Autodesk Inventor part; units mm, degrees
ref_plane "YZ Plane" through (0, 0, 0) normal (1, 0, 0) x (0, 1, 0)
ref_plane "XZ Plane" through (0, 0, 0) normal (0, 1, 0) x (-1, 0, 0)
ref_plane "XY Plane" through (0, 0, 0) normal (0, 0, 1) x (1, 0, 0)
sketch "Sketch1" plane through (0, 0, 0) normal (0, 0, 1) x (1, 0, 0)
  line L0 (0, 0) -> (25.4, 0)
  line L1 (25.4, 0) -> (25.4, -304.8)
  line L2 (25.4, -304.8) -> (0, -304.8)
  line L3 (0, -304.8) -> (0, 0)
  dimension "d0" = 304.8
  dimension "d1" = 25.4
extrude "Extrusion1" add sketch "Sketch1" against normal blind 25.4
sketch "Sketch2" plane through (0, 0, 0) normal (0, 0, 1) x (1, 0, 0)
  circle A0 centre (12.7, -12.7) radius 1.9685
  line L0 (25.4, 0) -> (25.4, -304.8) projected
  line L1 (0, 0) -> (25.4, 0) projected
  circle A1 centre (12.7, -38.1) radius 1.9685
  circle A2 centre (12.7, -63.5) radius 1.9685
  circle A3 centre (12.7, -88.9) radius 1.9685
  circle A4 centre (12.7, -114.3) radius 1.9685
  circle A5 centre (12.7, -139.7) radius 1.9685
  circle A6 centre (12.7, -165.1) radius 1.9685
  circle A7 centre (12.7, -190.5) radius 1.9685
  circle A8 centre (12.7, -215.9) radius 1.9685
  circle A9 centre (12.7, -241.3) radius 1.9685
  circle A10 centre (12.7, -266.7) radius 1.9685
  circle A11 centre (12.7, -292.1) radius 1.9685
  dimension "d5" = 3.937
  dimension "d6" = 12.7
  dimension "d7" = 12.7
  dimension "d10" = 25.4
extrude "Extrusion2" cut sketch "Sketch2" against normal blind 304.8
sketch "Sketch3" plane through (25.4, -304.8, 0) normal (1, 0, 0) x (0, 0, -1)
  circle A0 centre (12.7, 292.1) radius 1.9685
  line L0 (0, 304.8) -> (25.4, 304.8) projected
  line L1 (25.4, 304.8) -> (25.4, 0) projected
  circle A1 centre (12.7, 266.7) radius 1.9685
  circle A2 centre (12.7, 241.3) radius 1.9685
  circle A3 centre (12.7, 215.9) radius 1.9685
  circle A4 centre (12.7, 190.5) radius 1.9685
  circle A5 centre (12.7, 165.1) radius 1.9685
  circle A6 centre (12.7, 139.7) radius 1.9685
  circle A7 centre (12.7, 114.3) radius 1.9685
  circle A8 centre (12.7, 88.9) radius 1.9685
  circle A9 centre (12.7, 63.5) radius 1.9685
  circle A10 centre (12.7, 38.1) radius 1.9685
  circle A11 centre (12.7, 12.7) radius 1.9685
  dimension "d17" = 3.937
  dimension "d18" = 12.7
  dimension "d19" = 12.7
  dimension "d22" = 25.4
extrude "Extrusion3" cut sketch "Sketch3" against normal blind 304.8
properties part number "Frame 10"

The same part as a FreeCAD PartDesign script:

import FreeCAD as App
import Part
import Sketcher
Q = App.Units.Quantity

doc = App.newDocument("Part")
params = doc.addObject("Spreadsheet::Sheet", "Params")
for row, (alias, value) in enumerate([
    ("sketch1_width", "1 in"),
    ("sketch1_height", "12 in"),
    ("pad1_length", "1 in"),
    ("sketch2_diameter", "0.155 in"),
    ("pocket1_length", "12 in"),
    ("sketch3_diameter", "0.155 in"),
    ("pocket2_length", "12 in"),
], start=1):
    params.set(f"A{row}", alias)
    params.set(f"B{row}", "=" + value)
    params.setAlias(f"B{row}", alias)

body = doc.addObject("PartDesign::Body", "Body")

sketch1 = doc.addObject("Sketcher::SketchObject", "Sketch")
body.addObject(sketch1)
sketch1.AttachmentSupport = (doc.XY_Plane, [""])
sketch1.MapMode = "FlatFace"
sketch1.addGeometry([
    Part.LineSegment(App.Vector(25, 0, 0), App.Vector(0, 0, 0)),
    Part.LineSegment(App.Vector(0, 0, 0), App.Vector(0, -305, 0)),
    Part.LineSegment(App.Vector(0, -305, 0), App.Vector(25, -305, 0)),
    Part.LineSegment(App.Vector(25, -305, 0), App.Vector(25, 0, 0)),
], False)
sketch1.addConstraint([
    Sketcher.Constraint("Coincident", 0, 2, 1, 1),
    Sketcher.Constraint("Coincident", 1, 2, 2, 1),
    Sketcher.Constraint("Coincident", 2, 2, 3, 1),
    Sketcher.Constraint("Coincident", 3, 2, 0, 1),
    Sketcher.Constraint("Horizontal", 0),
    Sketcher.Constraint("Vertical", 1),
    Sketcher.Constraint("Horizontal", 2),
    Sketcher.Constraint("Vertical", 3),
    Sketcher.Constraint("Coincident", 0, 2, -1, 1),
    Sketcher.Constraint("DistanceX", 0, 2, 0, 1, Q("1 in")),
    Sketcher.Constraint("DistanceY", 1, 2, 1, 1, Q("12 in")),
])
sketch1.setExpression("Constraints[9]", "Params.sketch1_width")
sketch1.setExpression("Constraints[10]", "Params.sketch1_height")
pad1 = doc.addObject("PartDesign::Pad", "Pad")
body.addObject(pad1)
pad1.Profile = sketch1
pad1.setExpression("Length", "Params.pad1_length")
pad1.Reversed = True

sketch2 = doc.addObject("Sketcher::SketchObject", "Sketch001")
body.addObject(sketch2)
sketch2.AttachmentSupport = (doc.XY_Plane, [""])
sketch2.MapMode = "FlatFace"
sketch2.addGeometry([
    Part.Circle(App.Vector(12.7, -12.7, 0), App.Vector(0, 0, 1), 2),
    Part.Circle(App.Vector(12.7, -38.1, 0), App.Vector(0, 0, 1), 2),
    Part.Circle(App.Vector(12.7, -63.5, 0), App.Vector(0, 0, 1), 2),
    Part.Circle(App.Vector(12.7, -88.9, 0), App.Vector(0, 0, 1), 2),
    Part.Circle(App.Vector(12.7, -114.3, 0), App.Vector(0, 0, 1), 2),
    Part.Circle(App.Vector(12.7, -139.7, 0), App.Vector(0, 0, 1), 2),
    Part.Circle(App.Vector(12.7, -165.1, 0), App.Vector(0, 0, 1), 2),
    Part.Circle(App.Vector(12.7, -190.5, 0), App.Vector(0, 0, 1), 2),
    Part.Circle(App.Vector(12.7, -215.9, 0), App.Vector(0, 0, 1), 2),
    Part.Circle(App.Vector(12.7, -241.3, 0), App.Vector(0, 0, 1), 2),
    Part.Circle(App.Vector(12.7, -266.7, 0), App.Vector(0, 0, 1), 2),
    Part.Circle(App.Vector(12.7, -292.1, 0), App.Vector(0, 0, 1), 2),
], False)
sketch2.addConstraint([
    Sketcher.Constraint("Equal", 0, 1),
    Sketcher.Constraint("Equal", 1, 2),
    Sketcher.Constraint("Equal", 2, 3),
    Sketcher.Constraint("Equal", 3, 4),
    Sketcher.Constraint("Equal", 4, 5),
    Sketcher.Constraint("Equal", 5, 6),
    Sketcher.Constraint("Equal", 6, 7),
    Sketcher.Constraint("Equal", 7, 8),
    Sketcher.Constraint("Equal", 8, 9),
    Sketcher.Constraint("Equal", 9, 10),
    Sketcher.Constraint("Equal", 10, 11),
    Sketcher.Constraint("Vertical", 0, 3, 1, 3),
    Sketcher.Constraint("Vertical", 1, 3, 2, 3),
    Sketcher.Constraint("Vertical", 2, 3, 3, 3),
    Sketcher.Constraint("Vertical", 3, 3, 4, 3),
    Sketcher.Constraint("Vertical", 4, 3, 5, 3),
    Sketcher.Constraint("Vertical", 5, 3, 6, 3),
    Sketcher.Constraint("Vertical", 6, 3, 7, 3),
    Sketcher.Constraint("Vertical", 7, 3, 8, 3),
    Sketcher.Constraint("Vertical", 8, 3, 9, 3),
    Sketcher.Constraint("Vertical", 9, 3, 10, 3),
    Sketcher.Constraint("Vertical", 10, 3, 11, 3),
    Sketcher.Constraint("Diameter", 0, Q("0.155 in")),
    Sketcher.Constraint("DistanceY", 1, 3, 0, 3, Q("1 in")),
    Sketcher.Constraint("DistanceY", 2, 3, 1, 3, Q("1 in")),
    Sketcher.Constraint("DistanceY", 3, 3, 2, 3, Q("1 in")),
    Sketcher.Constraint("DistanceY", 4, 3, 3, 3, Q("1 in")),
    Sketcher.Constraint("DistanceY", 5, 3, 4, 3, Q("1 in")),
    Sketcher.Constraint("DistanceY", 6, 3, 5, 3, Q("1 in")),
    Sketcher.Constraint("DistanceY", 7, 3, 6, 3, Q("1 in")),
    Sketcher.Constraint("DistanceY", 8, 3, 7, 3, Q("1 in")),
    Sketcher.Constraint("DistanceY", 9, 3, 8, 3, Q("1 in")),
    Sketcher.Constraint("DistanceY", 10, 3, 9, 3, Q("1 in")),
    Sketcher.Constraint("DistanceY", 11, 3, 10, 3, Q("1 in")),
    Sketcher.Constraint("DistanceX", -1, 1, 0, 3, Q("0.5 in")),
    Sketcher.Constraint("DistanceY", 0, 3, -1, 1, Q("0.5 in")),
])
sketch2.setExpression("Constraints[22]", "Params.sketch2_diameter")
pocket1 = doc.addObject("PartDesign::Pocket", "Pocket")
body.addObject(pocket1)
pocket1.Profile = sketch2
pocket1.setExpression("Length", "Params.pocket1_length")

sketch3 = doc.addObject("Sketcher::SketchObject", "Sketch002")
body.addObject(sketch3)
sketch3.AttachmentSupport = (doc.YZ_Plane, [""])
sketch3.MapMode = "FlatFace"
sketch3.AttachmentOffset = App.Placement(App.Vector(0, 0, 1 * 25.4), App.Rotation())
sketch3.addGeometry([
    Part.Circle(App.Vector(-12.7, -12.7, 0), App.Vector(0, 0, 1), 2),
    Part.Circle(App.Vector(-38.1, -12.7, 0), App.Vector(0, 0, 1), 2),
    Part.Circle(App.Vector(-63.5, -12.7, 0), App.Vector(0, 0, 1), 2),
    Part.Circle(App.Vector(-88.9, -12.7, 0), App.Vector(0, 0, 1), 2),
    Part.Circle(App.Vector(-114.3, -12.7, 0), App.Vector(0, 0, 1), 2),
    Part.Circle(App.Vector(-139.7, -12.7, 0), App.Vector(0, 0, 1), 2),
    Part.Circle(App.Vector(-165.1, -12.7, 0), App.Vector(0, 0, 1), 2),
    Part.Circle(App.Vector(-190.5, -12.7, 0), App.Vector(0, 0, 1), 2),
    Part.Circle(App.Vector(-215.9, -12.7, 0), App.Vector(0, 0, 1), 2),
    Part.Circle(App.Vector(-241.3, -12.7, 0), App.Vector(0, 0, 1), 2),
    Part.Circle(App.Vector(-266.7, -12.7, 0), App.Vector(0, 0, 1), 2),
    Part.Circle(App.Vector(-292.1, -12.7, 0), App.Vector(0, 0, 1), 2),
], False)
sketch3.addConstraint([
    Sketcher.Constraint("Equal", 0, 1),
    Sketcher.Constraint("Equal", 1, 2),
    Sketcher.Constraint("Equal", 2, 3),
    Sketcher.Constraint("Equal", 3, 4),
    Sketcher.Constraint("Equal", 4, 5),
    Sketcher.Constraint("Equal", 5, 6),
    Sketcher.Constraint("Equal", 6, 7),
    Sketcher.Constraint("Equal", 7, 8),
    Sketcher.Constraint("Equal", 8, 9),
    Sketcher.Constraint("Equal", 9, 10),
    Sketcher.Constraint("Equal", 10, 11),
    Sketcher.Constraint("Horizontal", 0, 3, 1, 3),
    Sketcher.Constraint("Horizontal", 1, 3, 2, 3),
    Sketcher.Constraint("Horizontal", 2, 3, 3, 3),
    Sketcher.Constraint("Horizontal", 3, 3, 4, 3),
    Sketcher.Constraint("Horizontal", 4, 3, 5, 3),
    Sketcher.Constraint("Horizontal", 5, 3, 6, 3),
    Sketcher.Constraint("Horizontal", 6, 3, 7, 3),
    Sketcher.Constraint("Horizontal", 7, 3, 8, 3),
    Sketcher.Constraint("Horizontal", 8, 3, 9, 3),
    Sketcher.Constraint("Horizontal", 9, 3, 10, 3),
    Sketcher.Constraint("Horizontal", 10, 3, 11, 3),
    Sketcher.Constraint("Diameter", 0, Q("0.155 in")),
    Sketcher.Constraint("DistanceX", 1, 3, 0, 3, Q("1 in")),
    Sketcher.Constraint("DistanceX", 2, 3, 1, 3, Q("1 in")),
    Sketcher.Constraint("DistanceX", 3, 3, 2, 3, Q("1 in")),
    Sketcher.Constraint("DistanceX", 4, 3, 3, 3, Q("1 in")),
    Sketcher.Constraint("DistanceX", 5, 3, 4, 3, Q("1 in")),
    Sketcher.Constraint("DistanceX", 6, 3, 5, 3, Q("1 in")),
    Sketcher.Constraint("DistanceX", 7, 3, 6, 3, Q("1 in")),
    Sketcher.Constraint("DistanceX", 8, 3, 7, 3, Q("1 in")),
    Sketcher.Constraint("DistanceX", 9, 3, 8, 3, Q("1 in")),
    Sketcher.Constraint("DistanceX", 10, 3, 9, 3, Q("1 in")),
    Sketcher.Constraint("DistanceX", 11, 3, 10, 3, Q("1 in")),
    Sketcher.Constraint("DistanceX", 0, 3, -1, 1, Q("0.5 in")),
    Sketcher.Constraint("DistanceY", 0, 3, -1, 1, Q("0.5 in")),
])
sketch3.setExpression("Constraints[22]", "Params.sketch3_diameter")
pocket2 = doc.addObject("PartDesign::Pocket", "Pocket001")
body.addObject(pocket2)
pocket2.Profile = sketch3
pocket2.setExpression("Length", "Params.pocket2_length")

doc.recompute()
